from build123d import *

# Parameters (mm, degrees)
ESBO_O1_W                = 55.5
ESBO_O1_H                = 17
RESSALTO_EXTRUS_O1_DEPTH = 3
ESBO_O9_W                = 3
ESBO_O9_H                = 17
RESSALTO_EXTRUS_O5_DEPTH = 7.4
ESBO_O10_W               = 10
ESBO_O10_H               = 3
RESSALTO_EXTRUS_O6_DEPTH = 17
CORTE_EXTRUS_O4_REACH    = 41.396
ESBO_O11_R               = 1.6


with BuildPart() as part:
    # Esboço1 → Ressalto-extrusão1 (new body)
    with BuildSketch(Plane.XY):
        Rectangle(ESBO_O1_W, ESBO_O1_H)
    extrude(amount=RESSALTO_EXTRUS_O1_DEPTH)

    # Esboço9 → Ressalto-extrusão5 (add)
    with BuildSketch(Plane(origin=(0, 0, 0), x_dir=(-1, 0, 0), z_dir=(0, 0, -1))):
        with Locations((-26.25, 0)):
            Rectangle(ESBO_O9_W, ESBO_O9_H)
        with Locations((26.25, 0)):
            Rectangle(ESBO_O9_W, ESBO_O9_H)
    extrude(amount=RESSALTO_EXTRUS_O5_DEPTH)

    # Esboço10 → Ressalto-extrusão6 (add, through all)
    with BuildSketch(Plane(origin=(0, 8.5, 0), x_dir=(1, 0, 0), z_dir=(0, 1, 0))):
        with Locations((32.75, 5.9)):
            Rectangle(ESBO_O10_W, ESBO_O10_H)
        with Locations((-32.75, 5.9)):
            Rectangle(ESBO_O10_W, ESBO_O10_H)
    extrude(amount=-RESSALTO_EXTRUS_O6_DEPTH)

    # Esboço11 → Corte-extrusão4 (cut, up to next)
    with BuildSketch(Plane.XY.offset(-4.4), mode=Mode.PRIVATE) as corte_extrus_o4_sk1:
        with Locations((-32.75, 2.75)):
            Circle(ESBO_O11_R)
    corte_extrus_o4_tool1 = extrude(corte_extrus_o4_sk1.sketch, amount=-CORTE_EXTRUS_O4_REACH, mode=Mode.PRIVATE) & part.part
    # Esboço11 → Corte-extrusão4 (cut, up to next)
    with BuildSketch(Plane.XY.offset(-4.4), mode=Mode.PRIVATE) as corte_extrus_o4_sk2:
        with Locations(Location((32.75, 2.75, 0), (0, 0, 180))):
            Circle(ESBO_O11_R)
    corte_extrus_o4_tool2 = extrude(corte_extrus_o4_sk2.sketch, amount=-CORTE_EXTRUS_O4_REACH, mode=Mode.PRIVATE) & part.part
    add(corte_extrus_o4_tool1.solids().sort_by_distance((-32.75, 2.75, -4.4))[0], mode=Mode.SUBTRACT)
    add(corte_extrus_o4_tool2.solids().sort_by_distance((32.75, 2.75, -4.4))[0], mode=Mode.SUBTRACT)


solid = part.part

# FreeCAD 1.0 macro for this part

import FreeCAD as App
import Part
import Sketcher
Q = App.Units.Quantity

doc = App.newDocument("Part")
body = doc.addObject("PartDesign::Body", "Body")

# Sketch on XY plane
sketch1 = doc.addObject("Sketcher::SketchObject", "Sketch")
body.addObject(sketch1)
sketch1.AttachmentSupport = (doc.XY_Plane, [""])
sketch1.MapMode = "FlatFace"
sketch1.addGeometry([
    Part.LineSegment(App.Vector(-28, 8, 0), App.Vector(-28, -8, 0)),
    Part.LineSegment(App.Vector(-28, -8, 0), App.Vector(28, -8, 0)),
    Part.LineSegment(App.Vector(28, -8, 0), App.Vector(28, 8, 0)),
    Part.LineSegment(App.Vector(28, 8, 0), App.Vector(-28, 8, 0)),
], False)
sketch1.addConstraint([
    Sketcher.Constraint("Coincident", 0, 2, 1, 1),
    Sketcher.Constraint("Coincident", 1, 2, 2, 1),
    Sketcher.Constraint("Coincident", 2, 2, 3, 1),
    Sketcher.Constraint("Coincident", 3, 2, 0, 1),
    Sketcher.Constraint("Vertical", 0),
    Sketcher.Constraint("Horizontal", 1),
    Sketcher.Constraint("Vertical", 2),
    Sketcher.Constraint("Horizontal", 3),
    Sketcher.Constraint("Symmetric", 0, 2, 2, 2, -1, 1),
    Sketcher.Constraint("DistanceY", 0, 2, 0, 1, Q("17 mm")),
    Sketcher.Constraint("DistanceX", 1, 1, 1, 2, Q("55.5 mm")),
])
pad1 = doc.addObject("PartDesign::Pad", "Pad")
body.addObject(pad1)
pad1.Profile = sketch1
pad1.Length = 3

# Sketch on XY plane
sketch2 = doc.addObject("Sketcher::SketchObject", "Sketch001")
body.addObject(sketch2)
sketch2.AttachmentSupport = (doc.XY_Plane, [""])
sketch2.MapMode = "FlatFace"
sketch2.addGeometry([
    Part.LineSegment(App.Vector(27.8, 8.5, 0), App.Vector(27.8, -8.5, 0)),  # 0
    Part.LineSegment(App.Vector(27.8, -8.5, 0), App.Vector(24.8, -8.5, 0)),  # 1
    Part.LineSegment(App.Vector(24.8, -8.5, 0), App.Vector(24.8, 8.5, 0)),  # 2
    Part.LineSegment(App.Vector(24.8, 8.5, 0), App.Vector(27.8, 8.5, 0)),  # 3
    Part.LineSegment(App.Vector(-24.8, 8.5, 0), App.Vector(-24.8, -8.5, 0)),  # 4
    Part.LineSegment(App.Vector(-24.8, -8.5, 0), App.Vector(-27.8, -8.5, 0)),  # 5
    Part.LineSegment(App.Vector(-27.8, -8.5, 0), App.Vector(-27.8, 8.5, 0)),  # 6
    Part.LineSegment(App.Vector(-27.8, 8.5, 0), App.Vector(-24.8, 8.5, 0)),  # 7
], False)
sketch2.addConstraint([
    Sketcher.Constraint("Coincident", 0, 2, 1, 1),
    Sketcher.Constraint("Coincident", 1, 2, 2, 1),
    Sketcher.Constraint("Coincident", 2, 2, 3, 1),
    Sketcher.Constraint("Coincident", 3, 2, 0, 1),
    Sketcher.Constraint("Coincident", 4, 2, 5, 1),
    Sketcher.Constraint("Coincident", 5, 2, 6, 1),
    Sketcher.Constraint("Coincident", 6, 2, 7, 1),
    Sketcher.Constraint("Coincident", 7, 2, 4, 1),
    Sketcher.Constraint("Vertical", 0),
    Sketcher.Constraint("Horizontal", 1),
    Sketcher.Constraint("Vertical", 2),
    Sketcher.Constraint("Horizontal", 3),
    Sketcher.Constraint("Vertical", 4),
    Sketcher.Constraint("Horizontal", 5),
    Sketcher.Constraint("Vertical", 6),
    Sketcher.Constraint("Horizontal", 7),
    Sketcher.Constraint("Symmetric", 2, 2, 4, 2, -1, 1),
    Sketcher.Constraint("Symmetric", 0, 2, 6, 2, -1, 1),
    Sketcher.Constraint("Horizontal", 1, 2, 4, 2),
    Sketcher.Constraint("DistanceX", 1, 2, 1, 1, Q("3 mm")),
    Sketcher.Constraint("DistanceY", 0, 2, 0, 1, Q("17 mm")),
    Sketcher.Constraint("DistanceX", 4, 2, 1, 2, Q("49.5 mm")),
])
pad2 = doc.addObject("PartDesign::Pad", "Pad001")
body.addObject(pad2)
pad2.Profile = sketch2
pad2.Length = 7.4
pad2.Reversed = True

# Sketch on XZ plane
sketch3 = doc.addObject("Sketcher::SketchObject", "Sketch002")
body.addObject(sketch3)
sketch3.AttachmentSupport = (doc.XZ_Plane, [""])
sketch3.MapMode = "FlatFace"
sketch3.AttachmentOffset = App.Placement(App.Vector(0, 0, -8.5), App.Rotation())
sketch3.addGeometry([
    Part.LineSegment(App.Vector(27.8, -7.4, 0), App.Vector(27.8, -4.4, 0)),  # 0
    Part.LineSegment(App.Vector(27.8, -4.4, 0), App.Vector(37.8, -4.4, 0)),  # 1
    Part.LineSegment(App.Vector(37.8, -4.4, 0), App.Vector(37.8, -7.4, 0)),  # 2
    Part.LineSegment(App.Vector(37.8, -7.4, 0), App.Vector(27.8, -7.4, 0)),  # 3
    Part.LineSegment(App.Vector(-37.8, -7.4, 0), App.Vector(-37.8, -4.4, 0)),  # 4
    Part.LineSegment(App.Vector(-37.8, -4.4, 0), App.Vector(-27.8, -4.4, 0)),  # 5
    Part.LineSegment(App.Vector(-27.8, -4.4, 0), App.Vector(-27.8, -7.4, 0)),  # 6
    Part.LineSegment(App.Vector(-27.8, -7.4, 0), App.Vector(-37.8, -7.4, 0)),  # 7
], False)
sketch3.addConstraint([
    Sketcher.Constraint("Coincident", 0, 2, 1, 1),
    Sketcher.Constraint("Coincident", 1, 2, 2, 1),
    Sketcher.Constraint("Coincident", 2, 2, 3, 1),
    Sketcher.Constraint("Coincident", 3, 2, 0, 1),
    Sketcher.Constraint("Coincident", 4, 2, 5, 1),
    Sketcher.Constraint("Coincident", 5, 2, 6, 1),
    Sketcher.Constraint("Coincident", 6, 2, 7, 1),
    Sketcher.Constraint("Coincident", 7, 2, 4, 1),
    Sketcher.Constraint("Vertical", 0),
    Sketcher.Constraint("Horizontal", 1),
    Sketcher.Constraint("Vertical", 2),
    Sketcher.Constraint("Horizontal", 3),
    Sketcher.Constraint("Vertical", 4),
    Sketcher.Constraint("Horizontal", 5),
    Sketcher.Constraint("Vertical", 6),
    Sketcher.Constraint("Horizontal", 7),
    Sketcher.Constraint("Symmetric", 1, 2, 4, 2, -2),
    Sketcher.Constraint("Symmetric", 3, 2, 6, 2, -2),
    Sketcher.Constraint("DistanceX", 1, 1, 1, 2, Q("10 mm")),
    Sketcher.Constraint("DistanceY", 0, 1, 0, 2, Q("3 mm")),
    Sketcher.Constraint("DistanceY", 0, 2, -1, 1, Q("4.4 mm")),
    Sketcher.Constraint("DistanceX", 4, 2, 0, 2, Q("65.5 mm")),
])
pad3 = doc.addObject("PartDesign::Pad", "Pad002")
body.addObject(pad3)
pad3.Profile = sketch3
pad3.Length = 17

# Sketch on XY plane
sketch4 = doc.addObject("Sketcher::SketchObject", "Sketch003")
body.addObject(sketch4)
sketch4.AttachmentSupport = (doc.XY_Plane, [""])
sketch4.MapMode = "FlatFace"
sketch4.AttachmentOffset = App.Placement(App.Vector(0, 0, -4.4), App.Rotation())
sketch4.addGeometry(Part.Circle(App.Vector(-32.8, 2.8, 0), App.Vector(0, 0, 1), 1.6), False)
sketch4.addConstraint([
    Sketcher.Constraint("Diameter", 0, Q("3.2 mm")),
    Sketcher.Constraint("DistanceX", 0, 3, -1, 1, Q("32.75 mm")),
    Sketcher.Constraint("DistanceY", -1, 1, 0, 3, Q("2.75 mm")),
])
pocket1 = doc.addObject("PartDesign::Pocket", "Pocket")
body.addObject(pocket1)
pocket1.Profile = sketch4
pocket1.Type = "UpToFirst"

# Sketch on XY plane
sketch5 = doc.addObject("Sketcher::SketchObject", "Sketch004")
body.addObject(sketch5)
sketch5.AttachmentSupport = (doc.XY_Plane, [""])
sketch5.MapMode = "FlatFace"
sketch5.AttachmentOffset = App.Placement(App.Vector(0, 0, -4.4), App.Rotation())
sketch5.addGeometry(Part.Circle(App.Vector(32.8, 2.8, 0), App.Vector(0, 0, 1), 1.6), False)
sketch5.addConstraint([
    Sketcher.Constraint("Diameter", 0, Q("3.2 mm")),
    Sketcher.Constraint("DistanceX", -1, 1, 0, 3, Q("32.75 mm")),
    Sketcher.Constraint("DistanceY", -1, 1, 0, 3, Q("2.75 mm")),
])
pocket2 = doc.addObject("PartDesign::Pocket", "Pocket001")
body.addObject(pocket2)
pocket2.Profile = sketch5
pocket2.Type = "UpToFirst"

doc.recompute()
